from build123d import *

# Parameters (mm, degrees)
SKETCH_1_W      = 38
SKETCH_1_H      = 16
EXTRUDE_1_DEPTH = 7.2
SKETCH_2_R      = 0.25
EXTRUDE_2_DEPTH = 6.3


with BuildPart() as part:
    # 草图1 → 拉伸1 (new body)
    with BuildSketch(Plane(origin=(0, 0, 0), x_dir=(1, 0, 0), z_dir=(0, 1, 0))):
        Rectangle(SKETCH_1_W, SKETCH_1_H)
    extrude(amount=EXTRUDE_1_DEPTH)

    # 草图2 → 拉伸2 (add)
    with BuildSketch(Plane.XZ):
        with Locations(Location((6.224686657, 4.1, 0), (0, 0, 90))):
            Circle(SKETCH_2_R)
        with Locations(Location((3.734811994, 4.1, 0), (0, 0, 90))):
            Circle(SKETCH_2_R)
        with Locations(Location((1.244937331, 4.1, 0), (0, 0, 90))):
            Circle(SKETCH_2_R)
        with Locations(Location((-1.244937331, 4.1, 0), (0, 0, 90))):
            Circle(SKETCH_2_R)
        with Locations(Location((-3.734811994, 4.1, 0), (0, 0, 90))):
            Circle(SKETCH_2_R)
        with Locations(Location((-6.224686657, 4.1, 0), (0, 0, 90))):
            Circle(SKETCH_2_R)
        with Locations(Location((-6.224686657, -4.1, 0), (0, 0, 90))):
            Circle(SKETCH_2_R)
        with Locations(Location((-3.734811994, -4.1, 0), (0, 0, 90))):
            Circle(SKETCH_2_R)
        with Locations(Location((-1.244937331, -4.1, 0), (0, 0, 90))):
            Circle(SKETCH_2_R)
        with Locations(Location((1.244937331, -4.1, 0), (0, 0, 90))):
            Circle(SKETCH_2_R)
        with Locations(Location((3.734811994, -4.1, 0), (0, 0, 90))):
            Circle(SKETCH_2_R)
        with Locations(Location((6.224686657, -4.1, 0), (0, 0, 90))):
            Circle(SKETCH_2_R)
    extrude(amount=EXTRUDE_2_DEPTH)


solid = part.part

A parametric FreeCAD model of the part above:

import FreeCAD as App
import Part
import Sketcher
from FreeCAD import Vector
Q = App.Units.Quantity


def add_polygon(sketch, points):
    """Adds a closed chain of lines whose ends are joined by coincident constraints."""
    first, n = sketch.GeometryCount, len(points)
    for a, b in zip(points, points[1:] + points[:1]):
        sketch.addGeometry(Part.LineSegment(App.Vector(*a, 0), App.Vector(*b, 0)), False)
    for i in range(n):
        sketch.addConstraint(Sketcher.Constraint("Coincident", first + i, 2, first + (i + 1) % n, 1))

doc = App.newDocument("Part")
params = doc.addObject("Spreadsheet::Sheet", "Params")
for row, (alias, value) in enumerate([
    ("sketch1_width", "38 mm"),
    ("sketch1_height", "16 mm"),
    ("pad1_length", "7.2 mm"),
    ("sketch2_diameter", "0.5 mm"),
    ("pad2_length", "6.3 mm"),
], start=1):
    params.set(f"A{row}", alias)
    params.set(f"B{row}", "=" + value)
    params.setAlias(f"B{row}", alias)

body = doc.addObject("PartDesign::Body", "Body")

sketch1 = body.newObject("Sketcher::SketchObject", "Sketch")
sketch1.AttachmentSupport = (doc.getObject("XZ_Plane"), [""])
sketch1.MapMode = "FlatFace"
add_polygon(sketch1, [(-19, -8), (-19, 8), (19, 8), (19, -8)])
sketch1.addConstraint(Sketcher.Constraint("Vertical", 0))
sketch1.addConstraint(Sketcher.Constraint("Horizontal", 1))
sketch1.addConstraint(Sketcher.Constraint("Vertical", 2))
sketch1.addConstraint(Sketcher.Constraint("Horizontal", 3))
sketch1.addConstraint(Sketcher.Constraint("Symmetric", 0, 2, 2, 2, -1, 1))
sketch1.addConstraint(Sketcher.Constraint("DistanceX", 1, 1, 1, 2, Q("38 mm")))
sketch1.addConstraint(Sketcher.Constraint("DistanceY", 0, 1, 0, 2, Q("16 mm")))
sketch1.setExpression("Constraints[9]", "Params.sketch1_width")
sketch1.setExpression("Constraints[10]", "Params.sketch1_height")
pad1 = body.newObject("PartDesign::Pad", "Pad")
pad1.Profile = sketch1
pad1.setExpression("Length", "Params.pad1_length")
pad1.Reversed = True

sketch2 = body.newObject("Sketcher::SketchObject", "Sketch001")
sketch2.AttachmentSupport = (doc.getObject("XZ_Plane"), [""])
sketch2.MapMode = "FlatFace"
sketch2.addGeometry(Part.Circle(Vector(6.22, 4.1, 0), Vector(0, 0, 1), 0.25), False)
sketch2.addGeometry(Part.Circle(Vector(3.73, 4.1, 0), Vector(0, 0, 1), 0.25), False)
sketch2.addGeometry(Part.Circle(Vector(1.24, 4.1, 0), Vector(0, 0, 1), 0.25), False)
sketch2.addGeometry(Part.Circle(Vector(-1.24, 4.1, 0), Vector(0, 0, 1), 0.25), False)
sketch2.addGeometry(Part.Circle(Vector(-3.73, 4.1, 0), Vector(0, 0, 1), 0.25), False)
sketch2.addGeometry(Part.Circle(Vector(-6.22, 4.1, 0), Vector(0, 0, 1), 0.25), False)
sketch2.addGeometry(Part.Circle(Vector(-6.22, -4.1, 0), Vector(0, 0, 1), 0.25), False)
sketch2.addGeometry(Part.Circle(Vector(-3.73, -4.1, 0), Vector(0, 0, 1), 0.25), False)
sketch2.addGeometry(Part.Circle(Vector(-1.24, -4.1, 0), Vector(0, 0, 1), 0.25), False)
sketch2.addGeometry(Part.Circle(Vector(1.24, -4.1, 0), Vector(0, 0, 1), 0.25), False)
sketch2.addGeometry(Part.Circle(Vector(3.73, -4.1, 0), Vector(0, 0, 1), 0.25), False)
sketch2.addGeometry(Part.Circle(Vector(6.22, -4.1, 0), Vector(0, 0, 1), 0.25), False)
sketch2.addConstraint(Sketcher.Constraint("Equal", 0, 1))
sketch2.addConstraint(Sketcher.Constraint("Equal", 1, 2))
sketch2.addConstraint(Sketcher.Constraint("Equal", 2, 3))
sketch2.addConstraint(Sketcher.Constraint("Equal", 3, 4))
sketch2.addConstraint(Sketcher.Constraint("Equal", 4, 5))
sketch2.addConstraint(Sketcher.Constraint("Equal", 5, 6))
sketch2.addConstraint(Sketcher.Constraint("Equal", 6, 7))
sketch2.addConstraint(Sketcher.Constraint("Equal", 7, 8))
sketch2.addConstraint(Sketcher.Constraint("Equal", 8, 9))
sketch2.addConstraint(Sketcher.Constraint("Equal", 9, 10))
sketch2.addConstraint(Sketcher.Constraint("Equal", 10, 11))
sketch2.addConstraint(Sketcher.Constraint("Symmetric", 0, 3, 6, 3, -1, 1))
sketch2.addConstraint(Sketcher.Constraint("Symmetric", 1, 3, 7, 3, -1, 1))
sketch2.addConstraint(Sketcher.Constraint("Symmetric", 2, 3, 8, 3, -1, 1))
sketch2.addConstraint(Sketcher.Constraint("Symmetric", 3, 3, 9, 3, -1, 1))
sketch2.addConstraint(Sketcher.Constraint("Symmetric", 4, 3, 10, 3, -1, 1))
sketch2.addConstraint(Sketcher.Constraint("Symmetric", 5, 3, 11, 3, -1, 1))
sketch2.addConstraint(Sketcher.Constraint("Symmetric", 2, 3, 3, 3, -2))
sketch2.addConstraint(Sketcher.Constraint("Symmetric", 1, 3, 4, 3, -2))
sketch2.addConstraint(Sketcher.Constraint("Symmetric", 0, 3, 5, 3, -2))
sketch2.addConstraint(Sketcher.Constraint("Horizontal", 0, 3, 1, 3))
sketch2.addConstraint(Sketcher.Constraint("Horizontal", 1, 3, 2, 3))
sketch2.addConstraint(Sketcher.Constraint("Diameter", 0, Q("0.5 mm")))
sketch2.addConstraint(Sketcher.Constraint("DistanceY", -1, 1, 0, 3, Q("4.1 mm")))
sketch2.addConstraint(Sketcher.Constraint("DistanceX", 4, 3, 0, 3, Q("9.959499 mm")))
sketch2.addConstraint(Sketcher.Constraint("DistanceX", -1, 1, 1, 3, Q("3.734812 mm")))
sketch2.addConstraint(Sketcher.Constraint("DistanceX", 2, 3, 0, 3, Q("4.979749 mm")))
sketch2.setExpression("Constraints[22]", "Params.sketch2_diameter")
pad2 = body.newObject("PartDesign::Pad", "Pad001")
pad2.Profile = sketch2
pad2.setExpression("Length", "Params.pad2_length")

doc.recompute()
